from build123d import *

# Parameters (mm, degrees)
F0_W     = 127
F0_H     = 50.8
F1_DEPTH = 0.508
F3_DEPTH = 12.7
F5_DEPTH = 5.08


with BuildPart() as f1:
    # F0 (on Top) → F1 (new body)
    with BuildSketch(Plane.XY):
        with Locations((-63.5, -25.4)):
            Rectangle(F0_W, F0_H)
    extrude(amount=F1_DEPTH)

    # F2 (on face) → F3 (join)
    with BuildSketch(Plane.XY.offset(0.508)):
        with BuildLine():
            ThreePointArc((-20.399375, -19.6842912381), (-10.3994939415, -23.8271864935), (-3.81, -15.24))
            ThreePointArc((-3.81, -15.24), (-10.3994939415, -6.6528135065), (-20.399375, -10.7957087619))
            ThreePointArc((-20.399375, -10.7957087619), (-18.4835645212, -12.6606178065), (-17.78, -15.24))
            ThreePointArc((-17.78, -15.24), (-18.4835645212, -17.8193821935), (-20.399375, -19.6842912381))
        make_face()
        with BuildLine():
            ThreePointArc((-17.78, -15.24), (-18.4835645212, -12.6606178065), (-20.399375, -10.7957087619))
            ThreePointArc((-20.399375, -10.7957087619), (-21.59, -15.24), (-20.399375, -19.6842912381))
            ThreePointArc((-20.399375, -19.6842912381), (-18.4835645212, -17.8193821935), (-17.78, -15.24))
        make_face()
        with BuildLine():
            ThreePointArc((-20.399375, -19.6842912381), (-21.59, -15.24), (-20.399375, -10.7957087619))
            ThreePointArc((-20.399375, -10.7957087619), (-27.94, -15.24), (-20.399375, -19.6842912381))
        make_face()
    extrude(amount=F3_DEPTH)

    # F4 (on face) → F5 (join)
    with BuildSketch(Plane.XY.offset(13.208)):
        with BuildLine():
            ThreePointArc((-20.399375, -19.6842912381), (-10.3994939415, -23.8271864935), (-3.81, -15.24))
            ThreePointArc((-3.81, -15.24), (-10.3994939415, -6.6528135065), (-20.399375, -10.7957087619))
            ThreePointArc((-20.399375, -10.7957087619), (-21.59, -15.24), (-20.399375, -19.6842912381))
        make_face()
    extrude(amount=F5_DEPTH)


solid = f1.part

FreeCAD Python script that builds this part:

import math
import FreeCAD as App
import Part
import Sketcher
Q = App.Units.Quantity


def add_polygon(sketch, points):
    """Adds a closed chain of lines whose ends are joined by coincident constraints."""
    first, n = sketch.GeometryCount, len(points)
    for a, b in zip(points, points[1:] + points[:1]):
        sketch.addGeometry(Part.LineSegment(App.Vector(*a, 0), App.Vector(*b, 0)), False)
    for i in range(n):
        sketch.addConstraint(Sketcher.Constraint("Coincident", first + i, 2, first + (i + 1) % n, 1))

doc = App.newDocument("Part")
body = doc.addObject("PartDesign::Body", "Body")

sketch1 = body.newObject("Sketcher::SketchObject", "Sketch")
sketch1.AttachmentSupport = (doc.getObject("XY_Plane"), [""])
sketch1.MapMode = "FlatFace"
add_polygon(sketch1, [(-127, 0), (-127, -51), (0, -51), (0, 0)])
sketch1.addConstraint([
    Sketcher.Constraint("Vertical", 0),
    Sketcher.Constraint("Horizontal", 1),
    Sketcher.Constraint("Vertical", 2),
    Sketcher.Constraint("Horizontal", 3),
    Sketcher.Constraint("Coincident", 2, 2, -1, 1),
    Sketcher.Constraint("DistanceX", 1, 1, 1, 2, Q("5 in")),
    Sketcher.Constraint("DistanceY", 0, 2, 0, 1, Q("2 in")),
])
pad1 = body.newObject("PartDesign::Pad", "Pad")
pad1.Profile = sketch1
pad1.Length = Q("0.02 in")

sketch2 = body.newObject("Sketcher::SketchObject", "Sketch001")
sketch2.AttachmentSupport = (doc.getObject("XY_Plane"), [""])
sketch2.MapMode = "FlatFace"
sketch2.AttachmentOffset = App.Placement(App.Vector(0, 0, 0.02 * 25.4), App.Rotation())
sketch2.addGeometry([
    Part.ArcOfCircle(Part.Circle(App.Vector(-13, -15, 0), App.Vector(0, 0, 1), 9), math.radians(-150), math.radians(0)),
    Part.ArcOfCircle(Part.Circle(App.Vector(-13, -15, 0), App.Vector(0, 0, 1), 9), math.radians(0), math.radians(150)),
    Part.ArcOfCircle(Part.Circle(App.Vector(-23, -15, 0), App.Vector(0, 0, 1), 5), math.radians(61), math.radians(299)),
], False)
sketch2.addConstraint([
    Sketcher.Constraint("Tangent", 0, 2, 1, 1),
    Sketcher.Constraint("Coincident", 1, 2, 2, 1),
    Sketcher.Constraint("Coincident", 2, 2, 0, 1),
    Sketcher.Constraint("Equal", 0, 1),
    Sketcher.Constraint("Horizontal", 1, 3, 2, 3),
    Sketcher.Constraint("Horizontal", 2, 3, 0, 2),
    Sketcher.Constraint("Radius", 2, Q("0.2 in")),
    Sketcher.Constraint("Radius", 0, Q("0.35 in")),
    Sketcher.Constraint("DistanceX", 0, 3, -1, 1, Q("0.5 in")),
    Sketcher.Constraint("DistanceY", 0, 3, -1, 1, Q("0.6 in")),
    Sketcher.Constraint("DistanceX", 2, 3, -1, 1, Q("0.9 in")),
])
pad2 = body.newObject("PartDesign::Pad", "Pad001")
pad2.Profile = sketch2
pad2.Length = Q("0.5 in")

sketch3 = body.newObject("Sketcher::SketchObject", "Sketch002")
sketch3.AttachmentSupport = (doc.getObject("XY_Plane"), [""])
sketch3.MapMode = "FlatFace"
sketch3.AttachmentOffset = App.Placement(App.Vector(0, 0, 0.52 * 25.4), App.Rotation())
sketch3.addGeometry([
    Part.ArcOfCircle(Part.Circle(App.Vector(-13, -15, 0), App.Vector(0, 0, 1), 9), math.radians(-150), math.radians(0)),
    Part.ArcOfCircle(Part.Circle(App.Vector(-13, -15, 0), App.Vector(0, 0, 1), 9), math.radians(0), math.radians(150)),
    Part.ArcOfCircle(Part.Circle(App.Vector(-13, -15, 0), App.Vector(0, 0, 1), 9), math.radians(150), math.radians(210)),
], False)
sketch3.addConstraint([
    Sketcher.Constraint("Tangent", 0, 2, 1, 1),
    Sketcher.Constraint("Tangent", 1, 2, 2, 1),
    Sketcher.Constraint("Tangent", 2, 2, 0, 1),
    Sketcher.Constraint("Horizontal", 2, 3, 0, 2),
    Sketcher.Constraint("Vertical", 1, 2, 2, 2),
    Sketcher.Constraint("Radius", 0, Q("0.35 in")),
    Sketcher.Constraint("DistanceX", 0, 3, -1, 1, Q("0.5 in")),
    Sketcher.Constraint("DistanceY", 0, 3, -1, 1, Q("0.6 in")),
    Sketcher.Constraint("DistanceY", 1, 2, -1, 1, Q("10.795709 mm")),
])
pad3 = body.newObject("PartDesign::Pad", "Pad002")
pad3.Profile = sketch3
pad3.Length = Q("0.2 in")

doc.recompute()
